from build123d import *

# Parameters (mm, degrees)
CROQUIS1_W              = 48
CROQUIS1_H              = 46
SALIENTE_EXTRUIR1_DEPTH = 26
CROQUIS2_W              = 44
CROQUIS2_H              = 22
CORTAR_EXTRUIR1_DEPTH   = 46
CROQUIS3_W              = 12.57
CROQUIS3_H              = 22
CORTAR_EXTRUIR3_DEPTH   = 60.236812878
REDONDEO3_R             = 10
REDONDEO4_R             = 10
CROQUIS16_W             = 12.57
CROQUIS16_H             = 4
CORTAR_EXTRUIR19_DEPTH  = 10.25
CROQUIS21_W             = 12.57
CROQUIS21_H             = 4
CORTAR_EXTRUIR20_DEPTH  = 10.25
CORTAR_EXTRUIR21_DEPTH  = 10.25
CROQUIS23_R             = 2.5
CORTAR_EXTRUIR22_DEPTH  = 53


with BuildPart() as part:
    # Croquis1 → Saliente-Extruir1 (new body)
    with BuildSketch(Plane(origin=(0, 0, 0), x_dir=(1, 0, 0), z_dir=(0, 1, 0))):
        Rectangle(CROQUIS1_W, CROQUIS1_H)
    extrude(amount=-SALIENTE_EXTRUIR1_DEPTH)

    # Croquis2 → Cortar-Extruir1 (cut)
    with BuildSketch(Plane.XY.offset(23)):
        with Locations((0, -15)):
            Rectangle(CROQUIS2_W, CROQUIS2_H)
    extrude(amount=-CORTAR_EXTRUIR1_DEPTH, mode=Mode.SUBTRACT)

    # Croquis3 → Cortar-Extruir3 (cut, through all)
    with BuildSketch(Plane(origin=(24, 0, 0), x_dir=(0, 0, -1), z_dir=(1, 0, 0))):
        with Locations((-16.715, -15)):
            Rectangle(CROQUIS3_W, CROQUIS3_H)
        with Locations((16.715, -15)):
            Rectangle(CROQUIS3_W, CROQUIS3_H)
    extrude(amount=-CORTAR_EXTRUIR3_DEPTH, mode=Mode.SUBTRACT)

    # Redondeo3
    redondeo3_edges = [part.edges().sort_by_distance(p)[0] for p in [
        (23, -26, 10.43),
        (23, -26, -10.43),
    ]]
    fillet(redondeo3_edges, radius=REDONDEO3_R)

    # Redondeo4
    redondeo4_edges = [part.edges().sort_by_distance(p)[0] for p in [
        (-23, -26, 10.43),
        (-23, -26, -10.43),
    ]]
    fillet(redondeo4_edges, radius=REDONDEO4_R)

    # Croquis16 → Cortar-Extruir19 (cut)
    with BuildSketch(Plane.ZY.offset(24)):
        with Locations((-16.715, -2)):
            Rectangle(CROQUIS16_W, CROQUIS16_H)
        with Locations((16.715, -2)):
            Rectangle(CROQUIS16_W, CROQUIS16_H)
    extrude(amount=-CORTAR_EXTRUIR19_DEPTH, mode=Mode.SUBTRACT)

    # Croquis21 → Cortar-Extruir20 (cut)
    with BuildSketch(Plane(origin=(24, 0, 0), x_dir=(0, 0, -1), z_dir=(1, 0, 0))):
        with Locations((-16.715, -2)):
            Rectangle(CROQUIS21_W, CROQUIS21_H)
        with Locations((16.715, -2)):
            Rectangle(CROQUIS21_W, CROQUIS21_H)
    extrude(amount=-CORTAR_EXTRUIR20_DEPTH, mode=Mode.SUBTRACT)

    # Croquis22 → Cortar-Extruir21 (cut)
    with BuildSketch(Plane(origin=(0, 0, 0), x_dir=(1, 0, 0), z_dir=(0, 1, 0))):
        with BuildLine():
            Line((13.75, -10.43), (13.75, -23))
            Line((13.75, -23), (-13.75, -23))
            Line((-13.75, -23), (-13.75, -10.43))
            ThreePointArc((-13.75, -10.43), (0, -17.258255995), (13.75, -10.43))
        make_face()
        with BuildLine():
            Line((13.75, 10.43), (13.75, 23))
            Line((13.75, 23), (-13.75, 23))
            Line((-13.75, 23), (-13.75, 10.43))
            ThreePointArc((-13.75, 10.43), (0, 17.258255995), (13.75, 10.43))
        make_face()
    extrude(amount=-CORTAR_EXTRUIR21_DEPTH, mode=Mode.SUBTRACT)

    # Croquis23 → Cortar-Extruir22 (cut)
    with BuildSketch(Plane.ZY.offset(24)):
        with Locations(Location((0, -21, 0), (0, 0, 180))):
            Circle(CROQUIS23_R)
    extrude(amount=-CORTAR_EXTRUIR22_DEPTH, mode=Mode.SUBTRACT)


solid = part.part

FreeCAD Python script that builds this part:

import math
import FreeCAD as App
import Part
import Sketcher

V = App.Vector


def edges_at(feature, points):
    """Names of the edges that pass closest to the given points."""
    edges = feature.Shape.Edges
    near = lambda p: min(range(len(edges)), key=lambda i: edges[i].distToShape(Part.Vertex(*p))[0])
    return sorted({f"Edge{near(p) + 1}" for p in points})

doc = App.newDocument("Part")
body = doc.addObject("PartDesign::Body", "Body")

sketch1 = body.newObject("Sketcher::SketchObject", "Sketch")
sketch1.AttachmentSupport = (doc.getObject("XZ_Plane"), [""])
sketch1.MapMode = "FlatFace"
sketch1.addGeometry([
    Part.LineSegment(V(-24, -23, 0), V(-24, 23, 0)),
    Part.LineSegment(V(-24, 23, 0), V(24, 23, 0)),
    Part.LineSegment(V(24, 23, 0), V(24, -23, 0)),
    Part.LineSegment(V(24, -23, 0), V(-24, -23, 0)),
], False)
sketch1.addConstraint([
    Sketcher.Constraint("Coincident", 0, 2, 1, 1),
    Sketcher.Constraint("Coincident", 1, 2, 2, 1),
    Sketcher.Constraint("Coincident", 2, 2, 3, 1),
    Sketcher.Constraint("Coincident", 3, 2, 0, 1),
    Sketcher.Constraint("Vertical", 0),
    Sketcher.Constraint("Horizontal", 1),
    Sketcher.Constraint("Vertical", 2),
    Sketcher.Constraint("Horizontal", 3),
    Sketcher.Constraint("Symmetric", 0, 2, 2, 2, -1, 1),
    Sketcher.Constraint("DistanceX", 1, 1, 1, 2, 48.0),
    Sketcher.Constraint("DistanceY", 0, 1, 0, 2, 46.0),
])
pad1 = body.newObject("PartDesign::Pad", "Pad")
pad1.Profile = sketch1
pad1.Length = 26

sketch2 = body.newObject("Sketcher::SketchObject", "Sketch001")
sketch2.AttachmentSupport = (doc.getObject("XY_Plane"), [""])
sketch2.MapMode = "FlatFace"
sketch2.AttachmentOffset = App.Placement(V(0, 0, 23), App.Rotation())
sketch2.addGeometry([
    Part.LineSegment(V(-22, -4, 0), V(-22, -26, 0)),
    Part.LineSegment(V(-22, -26, 0), V(22, -26, 0)),
    Part.LineSegment(V(22, -26, 0), V(22, -4, 0)),
    Part.LineSegment(V(22, -4, 0), V(-22, -4, 0)),
], False)
sketch2.addConstraint([
    Sketcher.Constraint("Coincident", 0, 2, 1, 1),
    Sketcher.Constraint("Coincident", 1, 2, 2, 1),
    Sketcher.Constraint("Coincident", 2, 2, 3, 1),
    Sketcher.Constraint("Coincident", 3, 2, 0, 1),
    Sketcher.Constraint("Vertical", 0),
    Sketcher.Constraint("Horizontal", 1),
    Sketcher.Constraint("Vertical", 2),
    Sketcher.Constraint("Horizontal", 3),
    Sketcher.Constraint("DistanceX", 1, 1, 1, 2, 44.0),
    Sketcher.Constraint("DistanceY", 0, 2, 0, 1, 22.0),
    Sketcher.Constraint("DistanceX", 0, 2, -1, 1, 22.0),
    Sketcher.Constraint("DistanceY", 0, 2, -1, 1, 26.0),
])
pocket1 = body.newObject("PartDesign::Pocket", "Pocket")
pocket1.Profile = sketch2
pocket1.Length = 46

sketch3 = body.newObject("Sketcher::SketchObject", "Sketch002")
sketch3.AttachmentSupport = (doc.getObject("YZ_Plane"), [""])
sketch3.MapMode = "FlatFace"
sketch3.AttachmentOffset = App.Placement(V(0, 0, 24), App.Rotation())
sketch3.addGeometry([
    Part.LineSegment(V(-4, 23, 0), V(-26, 23, 0)),
    Part.LineSegment(V(-26, 23, 0), V(-26, 10, 0)),
    Part.LineSegment(V(-26, 10, 0), V(-4, 10, 0)),
    Part.LineSegment(V(-4, 10, 0), V(-4, 23, 0)),
    Part.LineSegment(V(-4, -10, 0), V(-26, -10, 0)),
    Part.LineSegment(V(-26, -10, 0), V(-26, -23, 0)),
    Part.LineSegment(V(-26, -23, 0), V(-4, -23, 0)),
    Part.LineSegment(V(-4, -23, 0), V(-4, -10, 0)),
], False)
sketch3.addConstraint([
    Sketcher.Constraint("Coincident", 0, 2, 1, 1),
    Sketcher.Constraint("Coincident", 1, 2, 2, 1),
    Sketcher.Constraint("Coincident", 2, 2, 3, 1),
    Sketcher.Constraint("Coincident", 3, 2, 0, 1),
    Sketcher.Constraint("Coincident", 4, 2, 5, 1),
    Sketcher.Constraint("Coincident", 5, 2, 6, 1),
    Sketcher.Constraint("Coincident", 6, 2, 7, 1),
    Sketcher.Constraint("Coincident", 7, 2, 4, 1),
    Sketcher.Constraint("Horizontal", 0),
    Sketcher.Constraint("Vertical", 1),
    Sketcher.Constraint("Horizontal", 2),
    Sketcher.Constraint("Vertical", 3),
    Sketcher.Constraint("Horizontal", 4),
    Sketcher.Constraint("Vertical", 5),
    Sketcher.Constraint("Horizontal", 6),
    Sketcher.Constraint("Vertical", 7),
    Sketcher.Constraint("Symmetric", 1, 2, 4, 2, -1),
    Sketcher.Constraint("Symmetric", 3, 2, 6, 2, -1),
    Sketcher.Constraint("DistanceX", 0, 2, 0, 1, 22.0),
    Sketcher.Constraint("DistanceX", 0, 2, -1, 1, 26.0),
    Sketcher.Constraint("DistanceY", -1, 1, 0, 2, 23.0),
    Sketcher.Constraint("DistanceY", 1, 2, 1, 1, 12.57),
])
pocket2 = body.newObject("PartDesign::Pocket", "Pocket001")
pocket2.Profile = sketch3
pocket2.Type = "ThroughAll"
doc.recompute()

fillet = body.newObject("PartDesign::Fillet", "Fillet")
fillet.Base = (pocket2, edges_at(pocket2, [(23, -26, 10.43), (23, -26, -10.43)]))
fillet.Radius = 10
doc.recompute()

fillet2 = body.newObject("PartDesign::Fillet", "Fillet001")
fillet2.Base = (fillet, edges_at(fillet, [(-23, -26, 10.43), (-23, -26, -10.43)]))
fillet2.Radius = 10

sketch4 = body.newObject("Sketcher::SketchObject", "Sketch003")
sketch4.AttachmentSupport = (doc.getObject("YZ_Plane"), [""])
sketch4.MapMode = "FlatFace"
sketch4.AttachmentOffset = App.Placement(V(0, 0, -24), App.Rotation())
sketch4.addGeometry([
    Part.LineSegment(V(0, -23, 0), V(-4, -23, 0)),
    Part.LineSegment(V(-4, -23, 0), V(-4, -10.4, 0)),
    Part.LineSegment(V(-4, -10.4, 0), V(0, -10.4, 0)),
    Part.LineSegment(V(0, -10.4, 0), V(0, -23, 0)),
    Part.LineSegment(V(0, 10.4, 0), V(-4, 10.4, 0)),
    Part.LineSegment(V(-4, 10.4, 0), V(-4, 23, 0)),
    Part.LineSegment(V(-4, 23, 0), V(0, 23, 0)),
    Part.LineSegment(V(0, 23, 0), V(0, 10.4, 0)),
], False)
sketch4.addConstraint([
    Sketcher.Constraint("Coincident", 0, 2, 1, 1),
    Sketcher.Constraint("Coincident", 1, 2, 2, 1),
    Sketcher.Constraint("Coincident", 2, 2, 3, 1),
    Sketcher.Constraint("Coincident", 3, 2, 0, 1),
    Sketcher.Constraint("Coincident", 4, 2, 5, 1),
    Sketcher.Constraint("Coincident", 5, 2, 6, 1),
    Sketcher.Constraint("Coincident", 6, 2, 7, 1),
    Sketcher.Constraint("Coincident", 7, 2, 4, 1),
    Sketcher.Constraint("Horizontal", 0),
    Sketcher.Constraint("Vertical", 1),
    Sketcher.Constraint("Horizontal", 2),
    Sketcher.Constraint("Vertical", 3),
    Sketcher.Constraint("Horizontal", 4),
    Sketcher.Constraint("Vertical", 5),
    Sketcher.Constraint("Horizontal", 6),
    Sketcher.Constraint("Vertical", 7),
    Sketcher.Constraint("Symmetric", 3, 2, 6, 2, -1, 1),
    Sketcher.Constraint("Symmetric", 1, 2, 4, 2, -1),
    Sketcher.Constraint("PointOnObject", 2, 2, -2),
    Sketcher.Constraint("DistanceX", 0, 2, 0, 1, 4.0),
    Sketcher.Constraint("DistanceY", 0, 2, -1, 1, 23.0),
    Sketcher.Constraint("DistanceY", 1, 1, 1, 2, 12.57),
])
pocket3 = body.newObject("PartDesign::Pocket", "Pocket002")
pocket3.Profile = sketch4
pocket3.Length = 10.25
pocket3.Reversed = True

sketch5 = body.newObject("Sketcher::SketchObject", "Sketch004")
sketch5.AttachmentSupport = (doc.getObject("YZ_Plane"), [""])
sketch5.MapMode = "FlatFace"
sketch5.AttachmentOffset = App.Placement(V(0, 0, 24), App.Rotation())
sketch5.addGeometry([
    Part.LineSegment(V(0, 23, 0), V(-4, 23, 0)),
    Part.LineSegment(V(-4, 23, 0), V(-4, 10.4, 0)),
    Part.LineSegment(V(-4, 10.4, 0), V(0, 10.4, 0)),
    Part.LineSegment(V(0, 10.4, 0), V(0, 23, 0)),
    Part.LineSegment(V(0, -10.4, 0), V(-4, -10.4, 0)),
    Part.LineSegment(V(-4, -10.4, 0), V(-4, -23, 0)),
    Part.LineSegment(V(-4, -23, 0), V(0, -23, 0)),
    Part.LineSegment(V(0, -23, 0), V(0, -10.4, 0)),
], False)
sketch5.addConstraint([
    Sketcher.Constraint("Coincident", 0, 2, 1, 1),
    Sketcher.Constraint("Coincident", 1, 2, 2, 1),
    Sketcher.Constraint("Coincident", 2, 2, 3, 1),
    Sketcher.Constraint("Coincident", 3, 2, 0, 1),
    Sketcher.Constraint("Coincident", 4, 2, 5, 1),
    Sketcher.Constraint("Coincident", 5, 2, 6, 1),
    Sketcher.Constraint("Coincident", 6, 2, 7, 1),
    Sketcher.Constraint("Coincident", 7, 2, 4, 1),
    Sketcher.Constraint("Horizontal", 0),
    Sketcher.Constraint("Vertical", 1),
    Sketcher.Constraint("Horizontal", 2),
    Sketcher.Constraint("Vertical", 3),
    Sketcher.Constraint("Horizontal", 4),
    Sketcher.Constraint("Vertical", 5),
    Sketcher.Constraint("Horizontal", 6),
    Sketcher.Constraint("Vertical", 7),
    Sketcher.Constraint("Symmetric", 3, 2, 6, 2, -1, 1),
    Sketcher.Constraint("Symmetric", 1, 2, 4, 2, -1),
    Sketcher.Constraint("PointOnObject", 2, 2, -2),
    Sketcher.Constraint("DistanceX", 0, 2, 0, 1, 4.0),
    Sketcher.Constraint("DistanceY", -1, 1, 0, 2, 23.0),
    Sketcher.Constraint("DistanceY", 1, 2, 1, 1, 12.57),
])
pocket4 = body.newObject("PartDesign::Pocket", "Pocket003")
pocket4.Profile = sketch5
pocket4.Length = 10.25

sketch6 = body.newObject("Sketcher::SketchObject", "Sketch005")
sketch6.AttachmentSupport = (doc.getObject("XZ_Plane"), [""])
sketch6.MapMode = "FlatFace"
sketch6.addGeometry([
    Part.LineSegment(V(14, 23, 0), V(14, 10, 0)),
    Part.ArcOfCircle(Part.Circle(V(0, 0, 0), V(0, 0, 1), 17), math.radians(37), math.radians(143)),
    Part.LineSegment(V(-14, 10, 0), V(-14, 23, 0)),
    Part.LineSegment(V(-14, 23, 0), V(14, 23, 0)),
    Part.LineSegment(V(14, -10, 0), V(14, -23, 0)),
    Part.LineSegment(V(14, -23, 0), V(-14, -23, 0)),
    Part.LineSegment(V(-14, -23, 0), V(-14, -10, 0)),
    Part.ArcOfCircle(Part.Circle(V(0, 0, 0), V(0, 0, 1), 17), math.radians(-143), math.radians(-37)),
], False)
sketch6.addConstraint([
    Sketcher.Constraint("Coincident", 0, 2, 1, 1),
    Sketcher.Constraint("Coincident", 1, 2, 2, 1),
    Sketcher.Constraint("Coincident", 2, 2, 3, 1),
    Sketcher.Constraint("Coincident", 3, 2, 0, 1),
    Sketcher.Constraint("Coincident", 4, 2, 5, 1),
    Sketcher.Constraint("Coincident", 5, 2, 6, 1),
    Sketcher.Constraint("Coincident", 6, 2, 7, 1),
    Sketcher.Constraint("Coincident", 7, 2, 4, 1),
    Sketcher.Constraint("Vertical", 0),
    Sketcher.Constraint("Vertical", 2),
    Sketcher.Constraint("Horizontal", 3),
    Sketcher.Constraint("Vertical", 4),
    Sketcher.Constraint("Horizontal", 5),
    Sketcher.Constraint("Vertical", 6),
    Sketcher.Constraint("Coincident", 1, 3, -1, 1),
    Sketcher.Constraint("Coincident", 7, 3, -1, 1),
    Sketcher.Constraint("Equal", 1, 7),
    Sketcher.Constraint("Symmetric", 2, 2, 4, 2, -1, 1),
    Sketcher.Constraint("Horizontal", 0, 2, 1, 2),
    Sketcher.Constraint("Horizontal", 6, 2, 7, 2),
    Sketcher.Constraint("DistanceX", 3, 1, 3, 2, 27.5),
    Sketcher.Constraint("DistanceY", -1, 1, 2, 2, 23.0),
    Sketcher.Constraint("DistanceY", 0, 2, 0, 1, 12.57),
])
pocket5 = body.newObject("PartDesign::Pocket", "Pocket004")
pocket5.Profile = sketch6
pocket5.Length = 10.25
pocket5.Reversed = True

sketch7 = body.newObject("Sketcher::SketchObject", "Sketch006")
sketch7.AttachmentSupport = (doc.getObject("YZ_Plane"), [""])
sketch7.MapMode = "FlatFace"
sketch7.AttachmentOffset = App.Placement(V(0, 0, -24), App.Rotation())
sketch7.addGeometry(Part.Circle(V(-21, 0, 0), V(0, 0, 1), 2.5), False)
sketch7.addConstraint([
    Sketcher.Constraint("PointOnObject", 0, 3, -1),
    Sketcher.Constraint("Diameter", 0, 5.0),
    Sketcher.Constraint("DistanceX", 0, 3, -1, 1, 21.0),
])
pocket6 = body.newObject("PartDesign::Pocket", "Pocket005")
pocket6.Profile = sketch7
pocket6.Length = 53
pocket6.Reversed = True

doc.recompute()
